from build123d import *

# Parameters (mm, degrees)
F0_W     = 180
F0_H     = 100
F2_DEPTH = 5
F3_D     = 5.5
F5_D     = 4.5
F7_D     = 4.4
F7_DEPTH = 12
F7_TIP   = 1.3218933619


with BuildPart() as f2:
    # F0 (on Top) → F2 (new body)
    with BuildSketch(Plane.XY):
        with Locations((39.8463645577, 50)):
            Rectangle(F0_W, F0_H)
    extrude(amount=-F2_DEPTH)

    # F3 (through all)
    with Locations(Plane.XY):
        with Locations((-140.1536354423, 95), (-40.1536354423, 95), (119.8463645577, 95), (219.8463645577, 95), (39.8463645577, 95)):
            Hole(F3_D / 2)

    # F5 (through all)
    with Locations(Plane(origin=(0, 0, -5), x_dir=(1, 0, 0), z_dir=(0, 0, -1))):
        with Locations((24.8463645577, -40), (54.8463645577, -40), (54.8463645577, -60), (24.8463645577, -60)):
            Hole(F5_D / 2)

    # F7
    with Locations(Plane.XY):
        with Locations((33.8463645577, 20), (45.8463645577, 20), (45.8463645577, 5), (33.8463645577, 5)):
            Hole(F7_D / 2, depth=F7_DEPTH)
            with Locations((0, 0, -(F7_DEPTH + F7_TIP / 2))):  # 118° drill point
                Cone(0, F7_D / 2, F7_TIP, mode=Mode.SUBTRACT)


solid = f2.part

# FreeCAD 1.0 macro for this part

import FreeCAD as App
import Part
import Sketcher

V = App.Vector


def add_polygon(sketch, points):
    """Adds a closed chain of lines whose ends are joined by coincident constraints."""
    first, n = sketch.GeometryCount, len(points)
    for a, b in zip(points, points[1:] + points[:1]):
        sketch.addGeometry(Part.LineSegment(App.Vector(*a, 0), App.Vector(*b, 0)), False)
    for i in range(n):
        sketch.addConstraint(Sketcher.Constraint("Coincident", first + i, 2, first + (i + 1) % n, 1))

doc = App.newDocument("Part")
body = doc.addObject("PartDesign::Body", "Body")

# Sketch on XY plane
sketch1 = body.newObject("Sketcher::SketchObject", "Sketch")
sketch1.AttachmentSupport = (doc.getObject("XY_Plane"), [""])
sketch1.MapMode = "FlatFace"
add_polygon(sketch1, [(-50, 100), (-50, 0), (130, 0), (130, 100)])  # lines 0-3
sketch1.addConstraint([
    Sketcher.Constraint("Vertical", 0),
    Sketcher.Constraint("Horizontal", 1),
    Sketcher.Constraint("Vertical", 2),
    Sketcher.Constraint("Horizontal", 3),
    Sketcher.Constraint("PointOnObject", 0, 2, -1),
    Sketcher.Constraint("DistanceX", 1, 1, 1, 2, 180.0),
    Sketcher.Constraint("DistanceY", 0, 2, 0, 1, 100.0),
    Sketcher.Constraint("DistanceX", 0, 2, -1, 1, 50.153635),
])
pad1 = body.newObject("PartDesign::Pad", "Pad")
pad1.Profile = sketch1
pad1.Length = 5
pad1.Reversed = True

# Sketch on XY plane
sketch2 = body.newObject("Sketcher::SketchObject", "Sketch001")
sketch2.AttachmentSupport = (doc.getObject("XY_Plane"), [""])
sketch2.MapMode = "FlatFace"
sketch2.addGeometry([
    Part.Circle(V(-140.2, 95, 0), V(0, 0, 1), 2.8),  # 0
    Part.Circle(V(-40.2, 95, 0), V(0, 0, 1), 2.8),  # 1
    Part.Circle(V(119.8, 95, 0), V(0, 0, 1), 2.8),  # 2
    Part.Circle(V(219.8, 95, 0), V(0, 0, 1), 2.8),  # 3
    Part.Circle(V(39.8, 95, 0), V(0, 0, 1), 2.8),  # 4
], False)
sketch2.addConstraint([
    Sketcher.Constraint("Equal", 0, 1),
    Sketcher.Constraint("Equal", 1, 2),
    Sketcher.Constraint("Equal", 2, 3),
    Sketcher.Constraint("Equal", 3, 4),
    Sketcher.Constraint("Horizontal", 0, 3, 1, 3),
    Sketcher.Constraint("Horizontal", 1, 3, 2, 3),
    Sketcher.Constraint("Horizontal", 2, 3, 3, 3),
    Sketcher.Constraint("Horizontal", 3, 3, 4, 3),
    Sketcher.Constraint("Diameter", 0, 5.5),
    Sketcher.Constraint("DistanceY", -1, 1, 0, 3, 95.0),
    Sketcher.Constraint("DistanceX", 0, 3, 1, 3, 100.0),
    Sketcher.Constraint("DistanceX", 1, 3, 2, 3, 160.0),
    Sketcher.Constraint("DistanceX", 2, 3, 3, 3, 100.0),
    Sketcher.Constraint("DistanceX", 1, 3, 4, 3, 80.0),
    Sketcher.Constraint("DistanceX", 0, 3, -1, 1, 140.153635),
])
doc.recompute()
hole = body.newObject("PartDesign::Hole", "Hole")
hole.Profile = sketch2
hole.ThreadType = "None"
hole.Diameter = 5.5
hole.DepthType = "ThroughAll"

# Sketch on XY plane
sketch3 = body.newObject("Sketcher::SketchObject", "Sketch002")
sketch3.AttachmentSupport = (doc.getObject("XY_Plane"), [""])
sketch3.MapMode = "FlatFace"
sketch3.AttachmentOffset = App.Placement(V(0, 0, -5), App.Rotation())
sketch3.addGeometry([
    Part.Circle(V(24.8, 40, 0), V(0, 0, 1), 2.2),
    Part.Circle(V(54.8, 40, 0), V(0, 0, 1), 2.2),
    Part.Circle(V(54.8, 60, 0), V(0, 0, 1), 2.2),
    Part.Circle(V(24.8, 60, 0), V(0, 0, 1), 2.2),
], False)
sketch3.addConstraint([
    Sketcher.Constraint("Equal", 0, 1),
    Sketcher.Constraint("Equal", 1, 2),
    Sketcher.Constraint("Equal", 2, 3),
    Sketcher.Constraint("Horizontal", 0, 3, 1, 3),
    Sketcher.Constraint("Horizontal", 2, 3, 3, 3),
    Sketcher.Constraint("Vertical", 1, 3, 2, 3),
    Sketcher.Constraint("Vertical", 0, 3, 3, 3),
    Sketcher.Constraint("Diameter", 0, 4.5),
    Sketcher.Constraint("DistanceY", -1, 1, 0, 3, 40.0),
    Sketcher.Constraint("DistanceY", -1, 1, 2, 3, 60.0),
    Sketcher.Constraint("DistanceX", 0, 3, 1, 3, 30.0),
    Sketcher.Constraint("DistanceX", -1, 1, 0, 3, 24.846365),
])
doc.recompute()
hole2 = body.newObject("PartDesign::Hole", "Hole001")
hole2.Profile = sketch3
hole2.ThreadType = "None"
hole2.Diameter = 4.5
hole2.DepthType = "ThroughAll"
hole2.Reversed = True

# Sketch on XY plane
sketch4 = body.newObject("Sketcher::SketchObject", "Sketch003")
sketch4.AttachmentSupport = (doc.getObject("XY_Plane"), [""])
sketch4.MapMode = "FlatFace"
sketch4.addGeometry([
    Part.Circle(V(33.8, 20, 0), V(0, 0, 1), 2.2),
    Part.Circle(V(45.8, 20, 0), V(0, 0, 1), 2.2),
    Part.Circle(V(45.8, 5, 0), V(0, 0, 1), 2.2),
    Part.Circle(V(33.8, 5, 0), V(0, 0, 1), 2.2),
], False)
sketch4.addConstraint([
    Sketcher.Constraint("Equal", 0, 1),
    Sketcher.Constraint("Equal", 1, 2),
    Sketcher.Constraint("Equal", 2, 3),
    Sketcher.Constraint("Horizontal", 0, 3, 1, 3),
    Sketcher.Constraint("Horizontal", 2, 3, 3, 3),
    Sketcher.Constraint("Vertical", 1, 3, 2, 3),
    Sketcher.Constraint("Vertical", 0, 3, 3, 3),
    Sketcher.Constraint("Diameter", 0, 4.4),
    Sketcher.Constraint("DistanceY", -1, 1, 0, 3, 20.0),
    Sketcher.Constraint("DistanceY", -1, 1, 2, 3, 5.0),
    Sketcher.Constraint("DistanceX", 0, 3, 1, 3, 12.0),
    Sketcher.Constraint("DistanceX", -1, 1, 0, 3, 33.846365),
])
doc.recompute()
hole3 = body.newObject("PartDesign::Hole", "Hole002")
hole3.Profile = sketch4
hole3.ThreadType = "None"
hole3.Diameter = 4.4
hole3.DepthType = "Dimension"
hole3.Depth = 12
hole3.DrillPoint = "Angled"
hole3.DrillPointAngle = 118

doc.recompute()
